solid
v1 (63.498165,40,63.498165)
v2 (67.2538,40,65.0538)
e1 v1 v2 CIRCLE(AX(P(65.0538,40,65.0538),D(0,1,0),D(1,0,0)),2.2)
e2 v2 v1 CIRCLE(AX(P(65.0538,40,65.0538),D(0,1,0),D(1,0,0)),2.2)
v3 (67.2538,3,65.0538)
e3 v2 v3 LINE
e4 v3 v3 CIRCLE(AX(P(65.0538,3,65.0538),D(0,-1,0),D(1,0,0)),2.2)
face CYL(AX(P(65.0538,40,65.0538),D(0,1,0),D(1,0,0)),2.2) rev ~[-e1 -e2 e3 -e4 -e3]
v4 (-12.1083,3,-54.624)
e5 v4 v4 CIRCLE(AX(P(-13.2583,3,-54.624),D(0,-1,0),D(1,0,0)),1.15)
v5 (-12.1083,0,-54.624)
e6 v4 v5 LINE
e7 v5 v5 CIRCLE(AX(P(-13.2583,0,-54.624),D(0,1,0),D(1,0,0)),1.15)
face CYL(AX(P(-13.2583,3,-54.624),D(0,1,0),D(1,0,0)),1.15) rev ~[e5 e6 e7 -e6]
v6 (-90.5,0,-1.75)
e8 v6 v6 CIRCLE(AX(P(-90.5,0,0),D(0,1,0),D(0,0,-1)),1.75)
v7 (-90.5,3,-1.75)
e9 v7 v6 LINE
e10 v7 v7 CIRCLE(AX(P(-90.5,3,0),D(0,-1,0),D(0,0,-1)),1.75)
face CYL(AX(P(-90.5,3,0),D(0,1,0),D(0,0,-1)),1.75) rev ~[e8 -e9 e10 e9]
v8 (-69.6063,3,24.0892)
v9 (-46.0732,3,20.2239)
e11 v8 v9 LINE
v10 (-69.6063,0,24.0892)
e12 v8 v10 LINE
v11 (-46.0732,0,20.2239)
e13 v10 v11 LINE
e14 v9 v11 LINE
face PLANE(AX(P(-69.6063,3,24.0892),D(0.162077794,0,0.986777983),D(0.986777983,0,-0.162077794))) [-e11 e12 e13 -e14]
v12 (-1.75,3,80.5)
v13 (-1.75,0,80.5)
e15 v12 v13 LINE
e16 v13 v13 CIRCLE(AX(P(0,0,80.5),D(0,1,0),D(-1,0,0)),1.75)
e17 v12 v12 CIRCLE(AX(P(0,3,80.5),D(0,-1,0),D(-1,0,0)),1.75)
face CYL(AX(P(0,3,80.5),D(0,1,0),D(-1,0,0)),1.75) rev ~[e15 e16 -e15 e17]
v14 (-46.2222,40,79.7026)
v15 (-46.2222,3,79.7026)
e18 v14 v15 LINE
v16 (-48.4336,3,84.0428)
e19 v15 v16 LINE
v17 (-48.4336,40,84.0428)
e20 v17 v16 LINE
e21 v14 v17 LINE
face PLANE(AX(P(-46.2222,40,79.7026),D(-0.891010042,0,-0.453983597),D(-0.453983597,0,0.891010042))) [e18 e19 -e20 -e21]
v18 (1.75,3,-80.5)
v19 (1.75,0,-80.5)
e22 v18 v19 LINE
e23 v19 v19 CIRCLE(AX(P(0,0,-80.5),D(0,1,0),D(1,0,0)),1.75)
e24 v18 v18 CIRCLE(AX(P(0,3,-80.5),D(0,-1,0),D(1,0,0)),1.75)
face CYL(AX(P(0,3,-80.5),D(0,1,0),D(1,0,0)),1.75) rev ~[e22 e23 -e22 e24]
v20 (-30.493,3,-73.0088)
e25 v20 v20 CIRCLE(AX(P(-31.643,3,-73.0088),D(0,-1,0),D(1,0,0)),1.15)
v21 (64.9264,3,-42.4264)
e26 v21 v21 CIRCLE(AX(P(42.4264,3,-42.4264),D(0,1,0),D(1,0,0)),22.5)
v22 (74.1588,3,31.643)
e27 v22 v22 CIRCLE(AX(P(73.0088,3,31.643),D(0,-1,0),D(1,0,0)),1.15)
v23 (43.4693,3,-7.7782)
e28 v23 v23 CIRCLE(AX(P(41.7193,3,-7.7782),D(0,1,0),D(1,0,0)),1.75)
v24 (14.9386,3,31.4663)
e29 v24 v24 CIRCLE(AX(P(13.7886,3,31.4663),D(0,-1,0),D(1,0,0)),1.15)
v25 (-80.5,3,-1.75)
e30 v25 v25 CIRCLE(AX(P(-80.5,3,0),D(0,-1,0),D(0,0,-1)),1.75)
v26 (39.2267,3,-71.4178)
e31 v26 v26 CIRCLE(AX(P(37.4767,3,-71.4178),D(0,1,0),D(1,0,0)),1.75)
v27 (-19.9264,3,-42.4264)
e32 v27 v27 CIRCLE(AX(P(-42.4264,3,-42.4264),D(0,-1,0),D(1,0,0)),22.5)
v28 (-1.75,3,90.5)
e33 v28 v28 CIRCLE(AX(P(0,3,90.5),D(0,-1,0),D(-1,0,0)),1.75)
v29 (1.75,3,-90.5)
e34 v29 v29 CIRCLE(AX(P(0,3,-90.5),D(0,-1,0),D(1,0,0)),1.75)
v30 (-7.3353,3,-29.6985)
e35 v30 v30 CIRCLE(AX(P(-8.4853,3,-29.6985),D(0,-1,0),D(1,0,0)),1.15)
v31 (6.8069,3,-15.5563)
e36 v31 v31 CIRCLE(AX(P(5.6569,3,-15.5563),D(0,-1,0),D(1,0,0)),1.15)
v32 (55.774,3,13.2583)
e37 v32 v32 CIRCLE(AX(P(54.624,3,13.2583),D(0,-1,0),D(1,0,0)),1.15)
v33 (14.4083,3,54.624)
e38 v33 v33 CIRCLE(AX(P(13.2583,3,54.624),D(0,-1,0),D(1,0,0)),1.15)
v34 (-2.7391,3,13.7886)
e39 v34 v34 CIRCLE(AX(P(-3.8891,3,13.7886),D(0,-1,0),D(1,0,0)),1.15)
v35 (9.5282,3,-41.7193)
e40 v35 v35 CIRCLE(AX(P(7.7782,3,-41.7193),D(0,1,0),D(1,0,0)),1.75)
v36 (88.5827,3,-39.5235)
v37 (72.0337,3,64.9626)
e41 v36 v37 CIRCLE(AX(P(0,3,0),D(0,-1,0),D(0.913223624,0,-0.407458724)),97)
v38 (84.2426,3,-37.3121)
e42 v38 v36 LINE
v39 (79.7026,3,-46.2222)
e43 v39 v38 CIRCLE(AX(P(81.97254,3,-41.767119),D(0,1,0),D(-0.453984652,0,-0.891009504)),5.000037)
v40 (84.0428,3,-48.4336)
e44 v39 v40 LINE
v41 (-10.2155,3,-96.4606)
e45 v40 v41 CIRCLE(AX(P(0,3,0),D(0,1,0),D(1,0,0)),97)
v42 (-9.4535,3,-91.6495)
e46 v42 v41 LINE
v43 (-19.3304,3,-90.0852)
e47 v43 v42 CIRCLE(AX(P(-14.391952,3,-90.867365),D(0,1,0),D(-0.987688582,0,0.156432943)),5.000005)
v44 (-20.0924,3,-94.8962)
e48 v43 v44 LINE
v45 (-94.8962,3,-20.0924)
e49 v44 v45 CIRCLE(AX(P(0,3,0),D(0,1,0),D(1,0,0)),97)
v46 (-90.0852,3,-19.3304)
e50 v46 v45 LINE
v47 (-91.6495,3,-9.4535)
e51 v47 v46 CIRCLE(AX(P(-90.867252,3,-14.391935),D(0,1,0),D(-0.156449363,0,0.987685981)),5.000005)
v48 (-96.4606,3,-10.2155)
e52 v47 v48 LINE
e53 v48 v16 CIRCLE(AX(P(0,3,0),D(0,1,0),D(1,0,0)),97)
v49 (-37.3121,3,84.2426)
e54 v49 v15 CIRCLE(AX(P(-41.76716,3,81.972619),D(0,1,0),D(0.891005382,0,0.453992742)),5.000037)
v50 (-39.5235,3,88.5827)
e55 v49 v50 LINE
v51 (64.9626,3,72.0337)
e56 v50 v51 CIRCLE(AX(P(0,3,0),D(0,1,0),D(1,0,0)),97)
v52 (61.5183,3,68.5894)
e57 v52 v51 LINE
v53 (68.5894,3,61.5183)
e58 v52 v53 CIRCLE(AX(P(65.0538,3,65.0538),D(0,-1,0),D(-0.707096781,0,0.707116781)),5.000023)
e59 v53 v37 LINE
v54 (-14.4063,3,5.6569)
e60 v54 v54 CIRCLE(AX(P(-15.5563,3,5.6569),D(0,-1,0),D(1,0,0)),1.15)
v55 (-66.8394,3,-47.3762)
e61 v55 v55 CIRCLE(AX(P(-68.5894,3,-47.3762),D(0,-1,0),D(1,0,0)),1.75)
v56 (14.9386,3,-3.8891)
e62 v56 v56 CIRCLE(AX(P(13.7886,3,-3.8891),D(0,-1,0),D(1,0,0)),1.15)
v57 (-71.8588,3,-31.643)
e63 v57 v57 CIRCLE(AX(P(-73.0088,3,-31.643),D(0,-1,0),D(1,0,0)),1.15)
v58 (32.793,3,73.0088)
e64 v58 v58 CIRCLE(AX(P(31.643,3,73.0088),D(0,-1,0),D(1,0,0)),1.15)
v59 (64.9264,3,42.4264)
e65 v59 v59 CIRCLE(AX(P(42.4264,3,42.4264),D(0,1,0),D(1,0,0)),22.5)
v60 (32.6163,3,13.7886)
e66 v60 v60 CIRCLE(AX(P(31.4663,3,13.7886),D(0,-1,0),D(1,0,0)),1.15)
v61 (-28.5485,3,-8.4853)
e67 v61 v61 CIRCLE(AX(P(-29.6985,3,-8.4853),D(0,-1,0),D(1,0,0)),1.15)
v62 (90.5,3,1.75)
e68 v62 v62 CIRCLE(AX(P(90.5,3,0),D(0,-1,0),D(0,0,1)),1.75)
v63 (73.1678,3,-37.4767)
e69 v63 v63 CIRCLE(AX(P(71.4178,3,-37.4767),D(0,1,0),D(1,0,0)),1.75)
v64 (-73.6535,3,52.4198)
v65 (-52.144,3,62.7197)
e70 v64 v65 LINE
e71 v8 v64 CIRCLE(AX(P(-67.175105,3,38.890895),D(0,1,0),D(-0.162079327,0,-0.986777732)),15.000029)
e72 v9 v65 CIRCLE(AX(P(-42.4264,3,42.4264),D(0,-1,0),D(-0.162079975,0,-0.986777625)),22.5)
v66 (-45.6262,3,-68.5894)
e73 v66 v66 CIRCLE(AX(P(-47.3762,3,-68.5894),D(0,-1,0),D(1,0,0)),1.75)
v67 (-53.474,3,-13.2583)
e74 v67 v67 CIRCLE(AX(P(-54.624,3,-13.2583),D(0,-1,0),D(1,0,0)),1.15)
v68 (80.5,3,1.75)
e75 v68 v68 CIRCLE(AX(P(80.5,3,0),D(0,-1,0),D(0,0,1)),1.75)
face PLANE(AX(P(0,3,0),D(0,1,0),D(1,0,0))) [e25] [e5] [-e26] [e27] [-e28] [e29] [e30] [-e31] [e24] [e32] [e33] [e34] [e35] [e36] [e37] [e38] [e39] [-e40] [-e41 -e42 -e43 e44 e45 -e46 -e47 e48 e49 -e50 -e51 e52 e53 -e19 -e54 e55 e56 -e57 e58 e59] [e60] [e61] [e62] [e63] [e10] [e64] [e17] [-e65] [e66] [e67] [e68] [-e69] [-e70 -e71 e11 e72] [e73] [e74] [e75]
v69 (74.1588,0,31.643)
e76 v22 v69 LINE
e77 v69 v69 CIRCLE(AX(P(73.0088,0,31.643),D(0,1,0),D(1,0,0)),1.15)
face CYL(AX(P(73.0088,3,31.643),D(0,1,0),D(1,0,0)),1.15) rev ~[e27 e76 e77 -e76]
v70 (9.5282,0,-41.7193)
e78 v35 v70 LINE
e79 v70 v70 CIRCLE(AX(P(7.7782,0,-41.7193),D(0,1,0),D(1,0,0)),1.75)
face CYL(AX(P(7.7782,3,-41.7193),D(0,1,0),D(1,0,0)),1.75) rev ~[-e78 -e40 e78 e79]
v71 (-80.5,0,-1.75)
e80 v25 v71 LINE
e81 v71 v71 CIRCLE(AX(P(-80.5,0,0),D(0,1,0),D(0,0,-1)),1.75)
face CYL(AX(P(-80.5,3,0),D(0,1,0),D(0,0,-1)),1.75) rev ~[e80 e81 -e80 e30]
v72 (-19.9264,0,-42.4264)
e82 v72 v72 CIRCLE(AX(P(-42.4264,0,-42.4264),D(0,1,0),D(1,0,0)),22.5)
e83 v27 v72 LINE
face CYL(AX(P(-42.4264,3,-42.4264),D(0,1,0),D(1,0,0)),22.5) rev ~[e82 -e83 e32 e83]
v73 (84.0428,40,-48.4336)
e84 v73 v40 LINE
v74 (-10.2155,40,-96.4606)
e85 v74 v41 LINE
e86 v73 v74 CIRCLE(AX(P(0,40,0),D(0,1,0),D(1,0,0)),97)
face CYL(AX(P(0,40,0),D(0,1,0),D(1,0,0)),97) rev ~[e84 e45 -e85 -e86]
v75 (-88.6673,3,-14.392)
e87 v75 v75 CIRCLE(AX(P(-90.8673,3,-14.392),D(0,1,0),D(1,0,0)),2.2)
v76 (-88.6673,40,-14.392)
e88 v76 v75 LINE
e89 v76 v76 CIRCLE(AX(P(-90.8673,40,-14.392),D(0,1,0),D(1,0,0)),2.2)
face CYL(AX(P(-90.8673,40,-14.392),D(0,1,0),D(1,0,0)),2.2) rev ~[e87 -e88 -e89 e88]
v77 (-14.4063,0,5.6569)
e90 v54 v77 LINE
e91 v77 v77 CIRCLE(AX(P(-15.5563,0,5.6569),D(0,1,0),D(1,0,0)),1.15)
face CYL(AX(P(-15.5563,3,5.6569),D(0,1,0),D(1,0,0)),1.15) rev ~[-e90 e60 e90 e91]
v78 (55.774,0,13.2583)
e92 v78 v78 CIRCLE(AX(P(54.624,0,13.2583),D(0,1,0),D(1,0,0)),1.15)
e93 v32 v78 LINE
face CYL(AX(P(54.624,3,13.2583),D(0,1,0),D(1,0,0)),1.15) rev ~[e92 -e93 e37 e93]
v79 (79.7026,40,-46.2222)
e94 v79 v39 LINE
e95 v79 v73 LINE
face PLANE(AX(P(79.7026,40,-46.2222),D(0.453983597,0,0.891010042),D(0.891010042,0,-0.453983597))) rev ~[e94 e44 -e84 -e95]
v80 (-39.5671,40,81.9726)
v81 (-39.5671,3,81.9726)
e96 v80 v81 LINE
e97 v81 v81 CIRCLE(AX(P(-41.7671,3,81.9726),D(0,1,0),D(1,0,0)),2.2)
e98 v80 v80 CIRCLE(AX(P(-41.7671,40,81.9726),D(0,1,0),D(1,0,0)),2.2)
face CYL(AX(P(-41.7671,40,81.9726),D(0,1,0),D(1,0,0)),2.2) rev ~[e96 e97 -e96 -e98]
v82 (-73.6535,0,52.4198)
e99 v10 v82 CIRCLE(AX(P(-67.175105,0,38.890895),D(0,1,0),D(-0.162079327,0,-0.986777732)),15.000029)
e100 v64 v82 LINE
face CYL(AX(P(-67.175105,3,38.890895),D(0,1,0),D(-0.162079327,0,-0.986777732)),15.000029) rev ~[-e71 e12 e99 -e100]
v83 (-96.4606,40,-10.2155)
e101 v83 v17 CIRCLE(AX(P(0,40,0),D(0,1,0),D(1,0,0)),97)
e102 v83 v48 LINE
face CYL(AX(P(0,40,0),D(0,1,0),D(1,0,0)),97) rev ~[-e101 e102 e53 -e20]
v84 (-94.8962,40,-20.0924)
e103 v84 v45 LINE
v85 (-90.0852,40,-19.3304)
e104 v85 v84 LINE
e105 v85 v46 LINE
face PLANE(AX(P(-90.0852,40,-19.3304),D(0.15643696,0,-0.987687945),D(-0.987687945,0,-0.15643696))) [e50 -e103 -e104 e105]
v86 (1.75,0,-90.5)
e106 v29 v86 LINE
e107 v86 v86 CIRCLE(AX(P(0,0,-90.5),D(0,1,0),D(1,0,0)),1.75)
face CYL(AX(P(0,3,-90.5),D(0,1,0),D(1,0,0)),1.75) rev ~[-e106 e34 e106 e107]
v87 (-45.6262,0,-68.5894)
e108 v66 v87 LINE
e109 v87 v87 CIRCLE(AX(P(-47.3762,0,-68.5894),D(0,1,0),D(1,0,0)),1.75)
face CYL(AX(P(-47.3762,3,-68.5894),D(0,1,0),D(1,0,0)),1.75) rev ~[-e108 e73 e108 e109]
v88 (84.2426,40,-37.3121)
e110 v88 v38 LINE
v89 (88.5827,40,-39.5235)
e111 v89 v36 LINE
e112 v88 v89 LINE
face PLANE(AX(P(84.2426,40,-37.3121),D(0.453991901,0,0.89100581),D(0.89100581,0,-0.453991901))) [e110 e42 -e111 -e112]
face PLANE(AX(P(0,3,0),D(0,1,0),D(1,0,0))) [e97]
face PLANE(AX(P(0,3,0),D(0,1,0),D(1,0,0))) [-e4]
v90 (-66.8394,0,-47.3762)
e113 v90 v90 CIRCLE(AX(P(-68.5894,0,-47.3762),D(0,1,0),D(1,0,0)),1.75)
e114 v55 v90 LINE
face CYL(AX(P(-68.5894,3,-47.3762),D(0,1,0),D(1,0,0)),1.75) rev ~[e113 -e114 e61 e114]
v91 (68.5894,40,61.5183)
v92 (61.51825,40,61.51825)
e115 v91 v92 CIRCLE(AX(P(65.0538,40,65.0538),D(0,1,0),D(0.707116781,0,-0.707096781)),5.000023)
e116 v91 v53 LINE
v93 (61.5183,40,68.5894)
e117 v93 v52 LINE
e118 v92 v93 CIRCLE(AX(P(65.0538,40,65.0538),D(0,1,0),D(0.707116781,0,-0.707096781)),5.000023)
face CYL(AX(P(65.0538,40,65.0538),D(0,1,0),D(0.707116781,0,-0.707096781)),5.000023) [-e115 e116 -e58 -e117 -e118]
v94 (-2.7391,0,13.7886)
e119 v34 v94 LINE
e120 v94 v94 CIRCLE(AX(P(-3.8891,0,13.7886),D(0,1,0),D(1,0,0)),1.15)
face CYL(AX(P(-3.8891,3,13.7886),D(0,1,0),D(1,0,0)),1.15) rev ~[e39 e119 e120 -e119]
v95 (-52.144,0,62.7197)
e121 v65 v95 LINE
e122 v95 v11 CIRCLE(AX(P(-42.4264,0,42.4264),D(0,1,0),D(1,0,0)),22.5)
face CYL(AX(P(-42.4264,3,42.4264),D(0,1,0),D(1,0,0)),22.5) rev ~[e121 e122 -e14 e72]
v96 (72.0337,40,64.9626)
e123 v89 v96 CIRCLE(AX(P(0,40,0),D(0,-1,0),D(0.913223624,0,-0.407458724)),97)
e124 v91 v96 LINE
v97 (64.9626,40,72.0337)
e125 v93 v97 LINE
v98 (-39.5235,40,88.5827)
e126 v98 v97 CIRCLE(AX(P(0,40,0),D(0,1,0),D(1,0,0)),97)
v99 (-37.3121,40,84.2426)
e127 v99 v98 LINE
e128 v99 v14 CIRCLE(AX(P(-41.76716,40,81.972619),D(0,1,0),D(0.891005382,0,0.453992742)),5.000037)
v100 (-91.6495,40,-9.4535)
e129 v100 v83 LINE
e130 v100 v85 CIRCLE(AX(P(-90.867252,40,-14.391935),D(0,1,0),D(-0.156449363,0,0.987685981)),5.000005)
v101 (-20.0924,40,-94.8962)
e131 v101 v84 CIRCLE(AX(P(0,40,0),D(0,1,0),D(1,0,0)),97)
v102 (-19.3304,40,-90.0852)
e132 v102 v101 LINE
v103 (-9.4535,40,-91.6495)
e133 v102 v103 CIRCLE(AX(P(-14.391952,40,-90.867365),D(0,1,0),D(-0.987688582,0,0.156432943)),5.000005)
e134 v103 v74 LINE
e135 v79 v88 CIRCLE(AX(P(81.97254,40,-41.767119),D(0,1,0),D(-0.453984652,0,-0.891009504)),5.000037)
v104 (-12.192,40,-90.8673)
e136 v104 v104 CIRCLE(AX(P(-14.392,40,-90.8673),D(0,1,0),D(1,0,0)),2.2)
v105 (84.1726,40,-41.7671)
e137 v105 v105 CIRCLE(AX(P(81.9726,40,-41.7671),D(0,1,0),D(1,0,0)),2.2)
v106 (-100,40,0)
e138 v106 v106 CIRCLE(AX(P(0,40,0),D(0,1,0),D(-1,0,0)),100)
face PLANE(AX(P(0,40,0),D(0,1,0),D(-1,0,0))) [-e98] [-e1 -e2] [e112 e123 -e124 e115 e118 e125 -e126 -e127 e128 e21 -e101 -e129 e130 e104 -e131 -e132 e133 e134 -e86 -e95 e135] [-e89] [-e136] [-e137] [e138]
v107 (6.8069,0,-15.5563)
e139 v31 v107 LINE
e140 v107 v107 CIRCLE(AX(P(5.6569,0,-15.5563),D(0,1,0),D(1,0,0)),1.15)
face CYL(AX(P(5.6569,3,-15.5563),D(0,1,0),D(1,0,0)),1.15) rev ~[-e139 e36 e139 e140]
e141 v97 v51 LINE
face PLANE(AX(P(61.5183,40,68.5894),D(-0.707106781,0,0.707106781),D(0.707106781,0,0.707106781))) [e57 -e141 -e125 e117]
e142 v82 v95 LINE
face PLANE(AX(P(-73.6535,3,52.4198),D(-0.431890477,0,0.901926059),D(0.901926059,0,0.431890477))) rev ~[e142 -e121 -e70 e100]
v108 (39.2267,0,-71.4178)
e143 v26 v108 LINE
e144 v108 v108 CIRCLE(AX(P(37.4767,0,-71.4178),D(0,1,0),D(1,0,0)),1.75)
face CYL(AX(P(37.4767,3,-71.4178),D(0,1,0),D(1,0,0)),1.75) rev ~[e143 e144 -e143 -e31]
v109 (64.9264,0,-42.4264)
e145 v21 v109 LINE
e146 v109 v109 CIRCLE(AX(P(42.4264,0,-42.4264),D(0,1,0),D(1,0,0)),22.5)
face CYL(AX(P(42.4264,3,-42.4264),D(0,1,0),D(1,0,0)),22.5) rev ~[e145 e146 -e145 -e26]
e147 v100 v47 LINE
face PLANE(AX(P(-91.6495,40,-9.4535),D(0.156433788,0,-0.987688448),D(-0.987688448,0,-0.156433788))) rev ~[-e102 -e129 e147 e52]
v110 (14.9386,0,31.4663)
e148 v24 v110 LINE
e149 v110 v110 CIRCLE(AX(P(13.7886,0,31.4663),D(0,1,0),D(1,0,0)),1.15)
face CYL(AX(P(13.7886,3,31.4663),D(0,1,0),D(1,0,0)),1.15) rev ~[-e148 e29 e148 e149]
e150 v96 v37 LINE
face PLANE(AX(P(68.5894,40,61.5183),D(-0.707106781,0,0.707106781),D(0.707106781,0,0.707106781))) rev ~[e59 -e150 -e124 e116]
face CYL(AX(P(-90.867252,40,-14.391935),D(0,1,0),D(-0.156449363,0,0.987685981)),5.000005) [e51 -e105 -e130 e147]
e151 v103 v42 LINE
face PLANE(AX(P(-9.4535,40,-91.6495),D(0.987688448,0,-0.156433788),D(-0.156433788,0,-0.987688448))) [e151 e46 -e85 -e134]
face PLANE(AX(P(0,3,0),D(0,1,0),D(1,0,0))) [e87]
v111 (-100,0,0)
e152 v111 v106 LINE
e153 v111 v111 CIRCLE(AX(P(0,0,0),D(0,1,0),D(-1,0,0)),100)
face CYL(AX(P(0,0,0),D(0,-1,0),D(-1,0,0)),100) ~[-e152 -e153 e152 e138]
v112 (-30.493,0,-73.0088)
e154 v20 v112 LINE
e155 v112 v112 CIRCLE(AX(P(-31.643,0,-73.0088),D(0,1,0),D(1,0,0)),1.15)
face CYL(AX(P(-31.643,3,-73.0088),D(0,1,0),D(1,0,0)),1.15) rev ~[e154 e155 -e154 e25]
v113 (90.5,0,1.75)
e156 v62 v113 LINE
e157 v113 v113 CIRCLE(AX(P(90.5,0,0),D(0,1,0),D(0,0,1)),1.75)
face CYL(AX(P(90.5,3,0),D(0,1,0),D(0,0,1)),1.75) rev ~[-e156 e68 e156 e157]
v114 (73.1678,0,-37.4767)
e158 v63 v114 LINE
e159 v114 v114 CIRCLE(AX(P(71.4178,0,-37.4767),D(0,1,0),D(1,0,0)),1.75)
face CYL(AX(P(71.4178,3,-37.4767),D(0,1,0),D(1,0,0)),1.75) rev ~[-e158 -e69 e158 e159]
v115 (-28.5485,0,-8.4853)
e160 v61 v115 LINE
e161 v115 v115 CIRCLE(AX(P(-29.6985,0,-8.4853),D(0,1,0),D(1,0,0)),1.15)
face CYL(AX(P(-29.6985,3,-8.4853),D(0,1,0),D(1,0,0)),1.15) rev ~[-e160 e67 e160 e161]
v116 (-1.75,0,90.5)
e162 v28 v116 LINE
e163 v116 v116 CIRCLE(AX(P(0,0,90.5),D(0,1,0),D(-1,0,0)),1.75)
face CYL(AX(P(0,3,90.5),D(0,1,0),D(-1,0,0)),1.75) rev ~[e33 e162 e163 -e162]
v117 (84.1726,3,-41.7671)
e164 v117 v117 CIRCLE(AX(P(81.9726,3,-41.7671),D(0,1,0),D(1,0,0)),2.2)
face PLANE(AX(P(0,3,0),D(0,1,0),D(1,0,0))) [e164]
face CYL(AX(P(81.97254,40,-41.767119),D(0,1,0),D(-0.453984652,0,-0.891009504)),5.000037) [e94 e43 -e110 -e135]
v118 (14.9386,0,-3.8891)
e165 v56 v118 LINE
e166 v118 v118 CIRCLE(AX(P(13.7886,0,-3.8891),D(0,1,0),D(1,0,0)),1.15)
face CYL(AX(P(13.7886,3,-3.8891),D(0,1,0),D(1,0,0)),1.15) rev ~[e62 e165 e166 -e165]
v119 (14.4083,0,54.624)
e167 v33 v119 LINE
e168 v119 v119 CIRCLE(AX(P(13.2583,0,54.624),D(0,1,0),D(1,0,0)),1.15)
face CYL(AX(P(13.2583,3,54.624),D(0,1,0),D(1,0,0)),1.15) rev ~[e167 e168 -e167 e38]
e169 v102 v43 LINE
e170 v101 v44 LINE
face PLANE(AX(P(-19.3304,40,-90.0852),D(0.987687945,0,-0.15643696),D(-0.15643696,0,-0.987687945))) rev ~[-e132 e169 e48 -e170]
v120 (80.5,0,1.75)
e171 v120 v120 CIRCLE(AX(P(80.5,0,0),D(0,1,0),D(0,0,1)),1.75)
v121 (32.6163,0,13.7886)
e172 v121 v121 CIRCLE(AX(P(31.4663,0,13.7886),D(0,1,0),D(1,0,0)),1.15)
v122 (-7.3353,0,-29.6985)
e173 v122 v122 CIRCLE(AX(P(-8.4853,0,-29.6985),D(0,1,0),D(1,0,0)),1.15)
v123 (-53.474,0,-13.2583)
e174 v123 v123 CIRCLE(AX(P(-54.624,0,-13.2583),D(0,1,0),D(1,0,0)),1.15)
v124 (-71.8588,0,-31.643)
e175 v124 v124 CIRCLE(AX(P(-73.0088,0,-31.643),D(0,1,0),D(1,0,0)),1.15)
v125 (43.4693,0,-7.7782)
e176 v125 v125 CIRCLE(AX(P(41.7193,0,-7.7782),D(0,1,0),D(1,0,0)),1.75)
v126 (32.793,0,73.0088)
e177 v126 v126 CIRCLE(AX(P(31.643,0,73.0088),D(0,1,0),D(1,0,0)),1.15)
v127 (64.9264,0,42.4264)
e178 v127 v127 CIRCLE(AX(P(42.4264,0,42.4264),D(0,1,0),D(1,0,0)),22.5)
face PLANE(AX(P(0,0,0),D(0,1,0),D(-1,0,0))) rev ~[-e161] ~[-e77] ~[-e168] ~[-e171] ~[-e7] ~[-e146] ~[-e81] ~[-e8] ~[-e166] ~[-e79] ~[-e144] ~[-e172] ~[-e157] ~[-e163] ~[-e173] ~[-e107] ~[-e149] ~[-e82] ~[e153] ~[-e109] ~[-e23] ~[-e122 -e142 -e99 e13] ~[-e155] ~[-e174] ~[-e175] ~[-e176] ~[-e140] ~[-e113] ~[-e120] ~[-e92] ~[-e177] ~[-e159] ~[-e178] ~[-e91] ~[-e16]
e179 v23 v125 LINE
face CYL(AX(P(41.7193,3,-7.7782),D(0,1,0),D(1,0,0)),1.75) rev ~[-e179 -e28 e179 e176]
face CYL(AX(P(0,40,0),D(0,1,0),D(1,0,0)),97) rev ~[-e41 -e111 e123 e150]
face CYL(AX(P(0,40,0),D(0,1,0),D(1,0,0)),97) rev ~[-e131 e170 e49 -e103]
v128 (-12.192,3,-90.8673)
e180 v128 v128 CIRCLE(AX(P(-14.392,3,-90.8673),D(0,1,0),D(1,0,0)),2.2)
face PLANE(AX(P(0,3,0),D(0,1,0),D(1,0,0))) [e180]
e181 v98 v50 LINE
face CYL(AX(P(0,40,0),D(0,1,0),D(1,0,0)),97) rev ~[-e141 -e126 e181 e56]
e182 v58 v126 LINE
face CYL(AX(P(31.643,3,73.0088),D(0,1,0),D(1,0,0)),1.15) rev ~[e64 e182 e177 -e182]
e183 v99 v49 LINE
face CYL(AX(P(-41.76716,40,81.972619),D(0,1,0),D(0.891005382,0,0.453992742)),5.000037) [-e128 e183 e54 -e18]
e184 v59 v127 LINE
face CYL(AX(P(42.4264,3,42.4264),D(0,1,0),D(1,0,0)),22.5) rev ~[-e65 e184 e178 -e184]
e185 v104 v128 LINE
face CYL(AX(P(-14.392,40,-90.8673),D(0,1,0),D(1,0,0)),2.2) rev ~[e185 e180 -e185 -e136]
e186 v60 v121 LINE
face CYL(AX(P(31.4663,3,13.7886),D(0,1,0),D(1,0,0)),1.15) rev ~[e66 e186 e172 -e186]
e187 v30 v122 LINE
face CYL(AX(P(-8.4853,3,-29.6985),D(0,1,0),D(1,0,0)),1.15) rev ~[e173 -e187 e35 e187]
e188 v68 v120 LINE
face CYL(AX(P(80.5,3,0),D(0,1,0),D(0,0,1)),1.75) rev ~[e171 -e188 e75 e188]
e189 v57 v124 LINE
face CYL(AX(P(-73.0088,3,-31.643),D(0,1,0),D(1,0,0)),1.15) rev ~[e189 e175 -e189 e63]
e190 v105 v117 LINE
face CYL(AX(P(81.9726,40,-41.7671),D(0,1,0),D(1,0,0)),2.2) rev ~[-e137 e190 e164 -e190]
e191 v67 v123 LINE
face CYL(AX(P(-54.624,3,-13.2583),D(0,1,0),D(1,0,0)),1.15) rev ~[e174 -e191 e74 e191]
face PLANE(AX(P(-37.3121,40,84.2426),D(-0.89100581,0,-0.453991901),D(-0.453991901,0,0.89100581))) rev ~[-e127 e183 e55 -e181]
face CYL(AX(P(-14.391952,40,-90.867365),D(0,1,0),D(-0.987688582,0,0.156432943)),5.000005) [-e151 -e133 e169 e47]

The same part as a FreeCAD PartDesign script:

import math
import FreeCAD as App
import Part
import Sketcher
from FreeCAD import Vector
Q = App.Units.Quantity

doc = App.newDocument("Part")
body = doc.addObject("PartDesign::Body", "Body")

# Sketch on XZ plane
sketch1 = body.newObject("Sketcher::SketchObject", "Sketch")
sketch1.AttachmentSupport = (doc.getObject("XZ_Plane"), [""])
sketch1.MapMode = "FlatFace"
sketch1.addGeometry(Part.Circle(Vector(0, 0, 0), Vector(0, 0, 1), 100), False)
sketch1.addConstraint(Sketcher.Constraint("Coincident", 0, 3, -1, 1))
sketch1.addConstraint(Sketcher.Constraint("Diameter", 0, 200.0))
pad1 = body.newObject("PartDesign::Pad", "Pad")
pad1.Profile = sketch1
pad1.Length = 40
pad1.Reversed = True

# Sketch on XZ plane
sketch2 = body.newObject("Sketcher::SketchObject", "Sketch001")
sketch2.AttachmentSupport = (doc.getObject("XZ_Plane"), [""])
sketch2.MapMode = "FlatFace"
sketch2.AttachmentOffset = App.Placement(Vector(0, 0, -40), App.Rotation())
sketch2.addGeometry(Part.Circle(Vector(0, 0, 0), Vector(0, 0, 1), 97), False)
sketch2.addConstraint(Sketcher.Constraint("Coincident", 0, 3, -1, 1))
sketch2.addConstraint(Sketcher.Constraint("Diameter", 0, 194.0))
pocket1 = body.newObject("PartDesign::Pocket", "Pocket")
pocket1.Profile = sketch2
pocket1.Length = 37
pocket1.Reversed = True

# Sketch on XZ plane
sketch3 = body.newObject("Sketcher::SketchObject", "Sketch002")
sketch3.AttachmentSupport = (doc.getObject("XZ_Plane"), [""])
sketch3.MapMode = "FlatFace"
sketch3.AttachmentOffset = App.Placement(Vector(0, 0, -40), App.Rotation())
sketch3.addGeometry(Part.ArcOfCircle(Part.Circle(Vector(65.0538, 65.0538, 0), Vector(0, 0, 1), 5.000023), math.radians(-135), math.radians(-44.99919)), False)
sketch3.addGeometry(Part.ArcOfCircle(Part.Circle(Vector(65.0538, 65.0538, 0), Vector(0, 0, 1), 5.000023), math.radians(134.99919), math.radians(225)), False)
sketch3.addGeometry(Part.LineSegment(Vector(61.5183, 68.5894, 0), Vector(64.9626, 72.0337, 0)), False)
sketch3.addGeometry(Part.ArcOfCircle(Part.Circle(Vector(0, 0, 0), Vector(0, 0, 1), 97), math.radians(42.045285), math.radians(47.954715)), False)
sketch3.addGeometry(Part.LineSegment(Vector(72.0337, 64.9626, 0), Vector(68.5894, 61.5183, 0)), False)
sketch3.addGeometry(Part.Circle(Vector(65.0538, 65.0538, 0), Vector(0, 0, 1), 2.2), False)
sketch3.addGeometry(Part.ArcOfCircle(Part.Circle(Vector(0, 0, 0), Vector(0, 0, 1), 97), math.radians(114.045295), math.radians(119.954712)), False)
sketch3.addGeometry(Part.LineSegment(Vector(-39.5235, 88.5827, 0), Vector(-37.3121, 84.2426, 0)), False)
sketch3.addGeometry(Part.ArcOfCircle(Part.Circle(Vector(-41.7671, 81.9726, 0), Vector(0, 0, 1), 4.999992), math.radians(-152.999866), math.radians(27.000655)), False)
sketch3.addGeometry(Part.LineSegment(Vector(-46.2222, 79.7026, 0), Vector(-48.4336, 84.0428, 0)), False)
sketch3.addGeometry(Part.Circle(Vector(-41.7671, 81.9726, 0), Vector(0, 0, 1), 2.2), False)
sketch3.addGeometry(Part.LineSegment(Vector(84.2426, -37.3121, 0), Vector(88.5827, -39.5235, 0)), False)
sketch3.addGeometry(Part.ArcOfCircle(Part.Circle(Vector(0, 0, 0), Vector(0, 0, 1), 97), math.radians(-29.954712), math.radians(-24.045295)), False)
sketch3.addGeometry(Part.LineSegment(Vector(84.0428, -48.4336, 0), Vector(79.7026, -46.2222, 0)), False)
sketch3.addGeometry(Part.ArcOfCircle(Part.Circle(Vector(81.9726, -41.7671, 0), Vector(0, 0, 1), 5.000082), math.radians(62.999345), math.radians(242.999866)), False)
sketch3.addGeometry(Part.Circle(Vector(81.9726, -41.7671, 0), Vector(0, 0, 1), 2.2), False)
sketch3.addGeometry(Part.ArcOfCircle(Part.Circle(Vector(0, 0, 0), Vector(0, 0, 1), 97), math.radians(-173.954719), math.radians(-168.045303)), False)
sketch3.addGeometry(Part.LineSegment(Vector(-96.4606, -10.2155, 0), Vector(-91.6495, -9.4535, 0)), False)
sketch3.addGeometry(Part.ArcOfCircle(Part.Circle(Vector(-90.8673, -14.392, 0), Vector(0, 0, 1), 5.000062), math.radians(-81.000744), math.radians(99.000209)), False)
sketch3.addGeometry(Part.LineSegment(Vector(-90.0852, -19.3304, 0), Vector(-94.8962, -20.0924, 0)), False)
sketch3.addGeometry(Part.Circle(Vector(-90.8673, -14.392, 0), Vector(0, 0, 1), 2.2), False)
sketch3.addGeometry(Part.LineSegment(Vector(-9.4535, -91.6495, 0), Vector(-10.2155, -96.4606, 0)), False)
sketch3.addGeometry(Part.ArcOfCircle(Part.Circle(Vector(0, 0, 0), Vector(0, 0, 1), 97), math.radians(-101.954697), math.radians(-96.045281)), False)
sketch3.addGeometry(Part.LineSegment(Vector(-20.0924, -94.8962, 0), Vector(-19.3304, -90.0852, 0)), False)
sketch3.addGeometry(Part.ArcOfCircle(Part.Circle(Vector(-14.392, -90.8673, 0), Vector(0, 0, 1), 4.999947), math.radians(-9.000209), math.radians(171.000744)), False)
sketch3.addGeometry(Part.Circle(Vector(-14.392, -90.8673, 0), Vector(0, 0, 1), 2.2), False)
sketch3.addConstraint(Sketcher.Constraint("Tangent", 0, 1, 1, 2))
sketch3.addConstraint(Sketcher.Constraint("Tangent", 1, 1, 2, 1))
sketch3.addConstraint(Sketcher.Constraint("Coincident", 2, 2, 3, 2))
sketch3.addConstraint(Sketcher.Constraint("Coincident", 3, 1, 4, 1))
sketch3.addConstraint(Sketcher.Constraint("Tangent", 4, 2, 0, 2))
sketch3.addConstraint(Sketcher.Constraint("Coincident", 6, 1, 7, 1))
sketch3.addConstraint(Sketcher.Constraint("Tangent", 7, 2, 8, 2))
sketch3.addConstraint(Sketcher.Constraint("Tangent", 8, 1, 9, 1))
sketch3.addConstraint(Sketcher.Constraint("Coincident", 9, 2, 6, 2))
sketch3.addConstraint(Sketcher.Constraint("Coincident", 11, 2, 12, 2))
sketch3.addConstraint(Sketcher.Constraint("Coincident", 12, 1, 13, 1))
sketch3.addConstraint(Sketcher.Constraint("Tangent", 13, 2, 14, 2))
sketch3.addConstraint(Sketcher.Constraint("Tangent", 14, 1, 11, 1))
sketch3.addConstraint(Sketcher.Constraint("Coincident", 16, 1, 17, 1))
sketch3.addConstraint(Sketcher.Constraint("Tangent", 17, 2, 18, 2))
sketch3.addConstraint(Sketcher.Constraint("Tangent", 18, 1, 19, 1))
sketch3.addConstraint(Sketcher.Constraint("Coincident", 19, 2, 16, 2))
sketch3.addConstraint(Sketcher.Constraint("Coincident", 21, 2, 22, 2))
sketch3.addConstraint(Sketcher.Constraint("Coincident", 22, 1, 23, 1))
sketch3.addConstraint(Sketcher.Constraint("Tangent", 23, 2, 24, 2))
sketch3.addConstraint(Sketcher.Constraint("Tangent", 24, 1, 21, 1))
sketch3.addConstraint(Sketcher.Constraint("Coincident", 3, 3, -1, 1))
sketch3.addConstraint(Sketcher.Constraint("Coincident", 6, 3, -1, 1))
sketch3.addConstraint(Sketcher.Constraint("Coincident", 12, 3, -1, 1))
sketch3.addConstraint(Sketcher.Constraint("Coincident", 16, 3, -1, 1))
sketch3.addConstraint(Sketcher.Constraint("Coincident", 22, 3, -1, 1))
sketch3.addConstraint(Sketcher.Constraint("Coincident", 5, 3, 0, 3))
sketch3.addConstraint(Sketcher.Constraint("Coincident", 10, 3, 8, 3))
sketch3.addConstraint(Sketcher.Constraint("Coincident", 15, 3, 14, 3))
sketch3.addConstraint(Sketcher.Constraint("Coincident", 20, 3, 18, 3))
sketch3.addConstraint(Sketcher.Constraint("Coincident", 25, 3, 24, 3))
sketch3.addConstraint(Sketcher.Constraint("Equal", 0, 1))
sketch3.addConstraint(Sketcher.Constraint("Equal", 3, 6))
sketch3.addConstraint(Sketcher.Constraint("Equal", 1, 8))
sketch3.addConstraint(Sketcher.Constraint("Equal", 5, 10))
sketch3.addConstraint(Sketcher.Constraint("Equal", 6, 12))
sketch3.addConstraint(Sketcher.Constraint("Equal", 8, 14))
sketch3.addConstraint(Sketcher.Constraint("Equal", 10, 15))
sketch3.addConstraint(Sketcher.Constraint("Equal", 12, 16))
sketch3.addConstraint(Sketcher.Constraint("Equal", 14, 18))
sketch3.addConstraint(Sketcher.Constraint("Equal", 15, 20))
sketch3.addConstraint(Sketcher.Constraint("Equal", 16, 22))
sketch3.addConstraint(Sketcher.Constraint("Equal", 18, 24))
sketch3.addConstraint(Sketcher.Constraint("Equal", 20, 25))
sketch3.addConstraint(Sketcher.Constraint("Parallel", 2, 4))
sketch3.addConstraint(Sketcher.Constraint("Parallel", 7, 9))
sketch3.addConstraint(Sketcher.Constraint("Parallel", 11, 13))
sketch3.addConstraint(Sketcher.Constraint("Parallel", 17, 19))
sketch3.addConstraint(Sketcher.Constraint("Parallel", 21, 23))
sketch3.addConstraint(Sketcher.Constraint("Horizontal", 0, 1, 4, 2))
sketch3.addConstraint(Sketcher.Constraint("Equal", 2, 4))
sketch3.addConstraint(Sketcher.Constraint("Equal", 4, 7))
sketch3.addConstraint(Sketcher.Constraint("Equal", 7, 9))
sketch3.addConstraint(Sketcher.Constraint("Equal", 9, 11))
sketch3.addConstraint(Sketcher.Constraint("Equal", 11, 13))
sketch3.addConstraint(Sketcher.Constraint("Equal", 13, 17))
sketch3.addConstraint(Sketcher.Constraint("Equal", 17, 19))
sketch3.addConstraint(Sketcher.Constraint("Equal", 19, 21))
sketch3.addConstraint(Sketcher.Constraint("Equal", 21, 23))
sketch3.addConstraint(Sketcher.Constraint("Radius", 0, 5.0))
sketch3.addConstraint(Sketcher.Constraint("Diameter", 5, 4.4))
sketch3.addConstraint(Sketcher.Constraint("Angle", 4, Q("-135 deg")))
sketch3.addConstraint(Sketcher.Constraint("Radius", 3, 97.0))
sketch3.addConstraint(Sketcher.Constraint("Angle", 7, Q("-63 deg")))
sketch3.addConstraint(Sketcher.Constraint("Angle", 11, Q("-27 deg")))
sketch3.addConstraint(Sketcher.Constraint("Angle", 17, Q("9 deg")))
sketch3.addConstraint(Sketcher.Constraint("Angle", 21, Q("-99 deg")))
sketch3.addConstraint(Sketcher.Constraint("DistanceY", 0, 3, 2, 2, 6.98))
pad2 = body.newObject("PartDesign::Pad", "Pad001")
pad2.Profile = sketch3
pad2.Length = 37

# Sketch on XZ plane
sketch4 = body.newObject("Sketcher::SketchObject", "Sketch003")
sketch4.AttachmentSupport = (doc.getObject("XZ_Plane"), [""])
sketch4.MapMode = "FlatFace"
sketch4.AttachmentOffset = App.Placement(Vector(0, 0, -3), App.Rotation())
sketch4.addGeometry(Part.Circle(Vector(37.4767, -71.4178, 0), Vector(0, 0, 1), 1.75), False)
sketch4.addGeometry(Part.Circle(Vector(7.7782, -41.7193, 0), Vector(0, 0, 1), 1.75), False)
sketch4.addGeometry(Part.Circle(Vector(71.4178, -37.4767, 0), Vector(0, 0, 1), 1.75), False)
sketch4.addGeometry(Part.Circle(Vector(41.7193, -7.7782, 0), Vector(0, 0, 1), 1.75), False)
sketch4.addConstraint(Sketcher.Constraint("Equal", 0, 1))
sketch4.addConstraint(Sketcher.Constraint("Equal", 1, 2))
sketch4.addConstraint(Sketcher.Constraint("Equal", 2, 3))
sketch4.addConstraint(Sketcher.Constraint("Diameter", 0, 3.5))
sketch4.addConstraint(Sketcher.Constraint("DistanceX", 0, 3, 2, 3, 33.941))
sketch4.addConstraint(Sketcher.Constraint("DistanceY", 0, 3, 2, 3, 33.941))
sketch4.addConstraint(Sketcher.Constraint("DistanceX", 1, 3, 3, 3, 33.941))
sketch4.addConstraint(Sketcher.Constraint("DistanceY", 1, 3, 3, 3, 33.941))
sketch4.addConstraint(Sketcher.Constraint("DistanceX", -1, 1, 0, 3, 37.4767))
sketch4.addConstraint(Sketcher.Constraint("DistanceY", 0, 3, -1, 1, 71.4178))
sketch4.addConstraint(Sketcher.Constraint("DistanceX", -1, 1, 1, 3, 7.7782))
sketch4.addConstraint(Sketcher.Constraint("DistanceY", 1, 3, -1, 1, 41.7193))
pocket2 = body.newObject("PartDesign::Pocket", "Pocket001")
pocket2.Profile = sketch4
pocket2.Length = 4
pocket2.Reversed = True

# Sketch on XZ plane
sketch5 = body.newObject("Sketcher::SketchObject", "Sketch004")
sketch5.AttachmentSupport = (doc.getObject("XZ_Plane"), [""])
sketch5.MapMode = "FlatFace"
sketch5.AttachmentOffset = App.Placement(Vector(0, 0, -3), App.Rotation())
sketch5.addGeometry(Part.Circle(Vector(54.624, 13.2583, 0), Vector(0, 0, 1), 1.15), False)
sketch5.addGeometry(Part.Circle(Vector(73.0088, 31.643, 0), Vector(0, 0, 1), 1.15), False)
sketch5.addGeometry(Part.Circle(Vector(13.2583, 54.624, 0), Vector(0, 0, 1), 1.15), False)
sketch5.addGeometry(Part.Circle(Vector(31.643, 73.0088, 0), Vector(0, 0, 1), 1.15), False)
sketch5.addConstraint(Sketcher.Constraint("Equal", 0, 1))
sketch5.addConstraint(Sketcher.Constraint("Equal", 1, 2))
sketch5.addConstraint(Sketcher.Constraint("Equal", 2, 3))
sketch5.addConstraint(Sketcher.Constraint("Diameter", 0, 2.3))
sketch5.addConstraint(Sketcher.Constraint("DistanceX", -1, 1, 0, 3, 54.624))
sketch5.addConstraint(Sketcher.Constraint("DistanceY", -1, 1, 1, 3, 31.643))
sketch5.addConstraint(Sketcher.Constraint("DistanceY", -1, 1, 2, 3, 54.624))
sketch5.addConstraint(Sketcher.Constraint("DistanceX", -1, 1, 3, 3, 31.643))
sketch5.addConstraint(Sketcher.Constraint("DistanceY", -1, 1, 0, 3, 13.2583))
sketch5.addConstraint(Sketcher.Constraint("DistanceX", -1, 1, 1, 3, 73.0088))
sketch5.addConstraint(Sketcher.Constraint("DistanceX", -1, 1, 2, 3, 13.2583))
sketch5.addConstraint(Sketcher.Constraint("DistanceY", -1, 1, 3, 3, 73.0088))
pocket3 = body.newObject("PartDesign::Pocket", "Pocket002")
pocket3.Profile = sketch5
pocket3.Length = 10
pocket3.Reversed = True

# Sketch on XZ plane
sketch6 = body.newObject("Sketcher::SketchObject", "Sketch005")
sketch6.AttachmentSupport = (doc.getObject("XZ_Plane"), [""])
sketch6.MapMode = "FlatFace"
sketch6.AttachmentOffset = App.Placement(Vector(0, 0, -3), App.Rotation())
sketch6.addGeometry(Part.Circle(Vector(-73.0088, -31.643, 0), Vector(0, 0, 1), 1.15), False)
sketch6.addGeometry(Part.Circle(Vector(-31.643, -73.0088, 0), Vector(0, 0, 1), 1.15), False)
sketch6.addGeometry(Part.Circle(Vector(-54.624, -13.2583, 0), Vector(0, 0, 1), 1.15), False)
sketch6.addGeometry(Part.Circle(Vector(-13.2583, -54.624, 0), Vector(0, 0, 1), 1.15), False)
sketch6.addConstraint(Sketcher.Constraint("Equal", 0, 1))
sketch6.addConstraint(Sketcher.Constraint("Equal", 1, 2))
sketch6.addConstraint(Sketcher.Constraint("Equal", 2, 3))
sketch6.addConstraint(Sketcher.Constraint("Diameter", 0, 2.3))
sketch6.addConstraint(Sketcher.Constraint("DistanceY", 0, 3, -1, 1, 31.643))
sketch6.addConstraint(Sketcher.Constraint("DistanceX", 1, 3, -1, 1, 31.643))
sketch6.addConstraint(Sketcher.Constraint("DistanceX", 2, 3, -1, 1, 54.624))
sketch6.addConstraint(Sketcher.Constraint("DistanceY", 3, 3, -1, 1, 54.624))
sketch6.addConstraint(Sketcher.Constraint("DistanceX", 0, 3, -1, 1, 73.0088))
sketch6.addConstraint(Sketcher.Constraint("DistanceY", 1, 3, -1, 1, 73.0088))
sketch6.addConstraint(Sketcher.Constraint("DistanceY", 2, 3, -1, 1, 13.2583))
sketch6.addConstraint(Sketcher.Constraint("DistanceX", 3, 3, -1, 1, 13.2583))
pocket4 = body.newObject("PartDesign::Pocket", "Pocket003")
pocket4.Profile = sketch6
pocket4.Length = 10
pocket4.Reversed = True

# Sketch on XZ plane
sketch7 = body.newObject("Sketcher::SketchObject", "Sketch006")
sketch7.AttachmentSupport = (doc.getObject("XZ_Plane"), [""])
sketch7.MapMode = "FlatFace"
sketch7.AttachmentOffset = App.Placement(Vector(0, 0, -3), App.Rotation())
sketch7.addGeometry(Part.Circle(Vector(-3.8891, 13.7886, 0), Vector(0, 0, 1), 1.15), False)
sketch7.addGeometry(Part.Circle(Vector(13.7886, 31.4663, 0), Vector(0, 0, 1), 1.15), False)
sketch7.addGeometry(Part.Circle(Vector(13.7886, -3.8891, 0), Vector(0, 0, 1), 1.15), False)
sketch7.addGeometry(Part.Circle(Vector(31.4663, 13.7886, 0), Vector(0, 0, 1), 1.15), False)
sketch7.addConstraint(Sketcher.Constraint("Equal", 0, 1))
sketch7.addConstraint(Sketcher.Constraint("Equal", 1, 2))
sketch7.addConstraint(Sketcher.Constraint("Equal", 2, 3))
sketch7.addConstraint(Sketcher.Constraint("Horizontal", 0, 3, 3, 3))
sketch7.addConstraint(Sketcher.Constraint("Vertical", 1, 3, 2, 3))
sketch7.addConstraint(Sketcher.Constraint("Diameter", 0, 2.3))
sketch7.addConstraint(Sketcher.Constraint("DistanceX", 0, 3, -1, 1, 3.889))
sketch7.addConstraint(Sketcher.Constraint("DistanceY", 2, 3, -1, 1, 3.889))
sketch7.addConstraint(Sketcher.Constraint("DistanceY", -1, 1, 0, 3, 13.7886))
sketch7.addConstraint(Sketcher.Constraint("DistanceX", -1, 1, 1, 3, 13.7886))
sketch7.addConstraint(Sketcher.Constraint("DistanceY", -1, 1, 1, 3, 31.4663))
sketch7.addConstraint(Sketcher.Constraint("DistanceX", -1, 1, 3, 3, 31.4663))
pocket5 = body.newObject("PartDesign::Pocket", "Pocket004")
pocket5.Profile = sketch7
pocket5.Length = 10
pocket5.Reversed = True

# Sketch on XZ plane
sketch8 = body.newObject("Sketcher::SketchObject", "Sketch007")
sketch8.AttachmentSupport = (doc.getObject("XZ_Plane"), [""])
sketch8.MapMode = "FlatFace"
sketch8.AttachmentOffset = App.Placement(Vector(0, 0, -3), App.Rotation())
sketch8.addGeometry(Part.Circle(Vector(-15.5563, 5.6569, 0), Vector(0, 0, 1), 1.15), False)
sketch8.addGeometry(Part.Circle(Vector(-29.6985, -8.4853, 0), Vector(0, 0, 1), 1.15), False)
sketch8.addGeometry(Part.Circle(Vector(5.6569, -15.5563, 0), Vector(0, 0, 1), 1.15), False)
sketch8.addGeometry(Part.Circle(Vector(-8.4853, -29.6985, 0), Vector(0, 0, 1), 1.15), False)
sketch8.addConstraint(Sketcher.Constraint("Equal", 0, 1))
sketch8.addConstraint(Sketcher.Constraint("Equal", 1, 2))
sketch8.addConstraint(Sketcher.Constraint("Equal", 2, 3))
sketch8.addConstraint(Sketcher.Constraint("Diameter", 0, 2.3))
sketch8.addConstraint(Sketcher.Constraint("DistanceY", -1, 1, 0, 3, 5.657))
sketch8.addConstraint(Sketcher.Constraint("DistanceX", -1, 1, 2, 3, 5.657))
sketch8.addConstraint(Sketcher.Constraint("DistanceY", 2, 3, 1, 3, 7.071))
sketch8.addConstraint(Sketcher.Constraint("DistanceX", 0, 3, 3, 3, 7.071))
sketch8.addConstraint(Sketcher.Constraint("DistanceX", 0, 3, -1, 1, 15.5563))
sketch8.addConstraint(Sketcher.Constraint("DistanceX", 1, 3, -1, 1, 29.6985))
sketch8.addConstraint(Sketcher.Constraint("DistanceY", 1, 3, -1, 1, 8.4853))
sketch8.addConstraint(Sketcher.Constraint("DistanceY", 3, 3, -1, 1, 29.6985))
pocket6 = body.newObject("PartDesign::Pocket", "Pocket005")
pocket6.Profile = sketch8
pocket6.Length = 10
pocket6.Reversed = True

# Sketch on XZ plane
sketch9 = body.newObject("Sketcher::SketchObject", "Sketch008")
sketch9.AttachmentSupport = (doc.getObject("XZ_Plane"), [""])
sketch9.MapMode = "FlatFace"
sketch9.AttachmentOffset = App.Placement(Vector(0, 0, -3), App.Rotation())
sketch9.addGeometry(Part.Circle(Vector(0, -80.5, 0), Vector(0, 0, 1), 1.75), False)
sketch9.addGeometry(Part.Circle(Vector(0, -90.5, 0), Vector(0, 0, 1), 1.75), False)
sketch9.addConstraint(Sketcher.Constraint("Equal", 0, 1))
sketch9.addConstraint(Sketcher.Constraint("PointOnObject", 0, 3, -2))
sketch9.addConstraint(Sketcher.Constraint("PointOnObject", 1, 3, -2))
sketch9.addConstraint(Sketcher.Constraint("Diameter", 0, 3.5))
sketch9.addConstraint(Sketcher.Constraint("DistanceY", 1, 3, 0, 3, 10.0))
sketch9.addConstraint(Sketcher.Constraint("DistanceY", 0, 3, -1, 1, 80.5))
pocket7 = body.newObject("PartDesign::Pocket", "Pocket006")
pocket7.Profile = sketch9
pocket7.Length = 10
pocket7.Reversed = True
doc.recompute()

polarpattern = body.newObject("PartDesign::PolarPattern", "PolarPattern")
polarpattern.Originals = [pocket7]
polarpattern.Axis = (doc.getObject("Y_Axis"), [""])
polarpattern.Angle = 360
polarpattern.Occurrences = 4
body.Tip = polarpattern

# Sketch on XZ plane
sketch10 = body.newObject("Sketcher::SketchObject", "Sketch009")
sketch10.AttachmentSupport = (doc.getObject("XZ_Plane"), [""])
sketch10.MapMode = "FlatFace"
sketch10.AttachmentOffset = App.Placement(Vector(0, 0, -3), App.Rotation())
sketch10.addGeometry(Part.LineSegment(Vector(-46.0732, 20.2239, 0), Vector(-69.6063, 24.0892, 0)), False)
sketch10.addGeometry(Part.ArcOfCircle(Part.Circle(Vector(-67.1751, 38.8909, 0), Vector(0, 0, 1), 15.000035), math.radians(115.587727), math.radians(260.672375)), False)
sketch10.addGeometry(Part.LineSegment(Vector(-73.6535, 52.4198, 0), Vector(-52.144, 62.7197, 0)), False)
sketch10.addGeometry(Part.ArcOfCircle(Part.Circle(Vector(-42.4264, 42.4264, 0), Vector(0, 0, 1), 22.5), math.radians(-99.327646), math.radians(115.587782)), False)
sketch10.addGeometry(Part.Circle(Vector(-42.4264, -42.4264, 0), Vector(0, 0, 1), 22.5), False)
sketch10.addGeometry(Part.Circle(Vector(42.4264, 42.4264, 0), Vector(0, 0, 1), 22.5), False)
sketch10.addGeometry(Part.Circle(Vector(42.4264, -42.4264, 0), Vector(0, 0, 1), 22.5), False)
sketch10.addConstraint(Sketcher.Constraint("Tangent", 0, 2, 1, 2))
sketch10.addConstraint(Sketcher.Constraint("Tangent", 1, 1, 2, 1))
sketch10.addConstraint(Sketcher.Constraint("Tangent", 2, 2, 3, 2))
sketch10.addConstraint(Sketcher.Constraint("Tangent", 3, 1, 0, 1))
sketch10.addConstraint(Sketcher.Constraint("Equal", 3, 4))
sketch10.addConstraint(Sketcher.Constraint("Equal", 4, 5))
sketch10.addConstraint(Sketcher.Constraint("Equal", 5, 6))
sketch10.addConstraint(Sketcher.Constraint("Symmetric", 4, 3, 5, 3, -1, 1))
sketch10.addConstraint(Sketcher.Constraint("Symmetric", 3, 3, 6, 3, -1, 1))
sketch10.addConstraint(Sketcher.Constraint("Symmetric", 3, 3, 5, 3, -2))
sketch10.addConstraint(Sketcher.Constraint("Diameter", 4, 45.0))
sketch10.addConstraint(Sketcher.Constraint("Radius", 1, 15.0))
sketch10.addConstraint(Sketcher.Constraint("DistanceY", 1, 1, 2, 2, 10.3))
sketch10.addConstraint(Sketcher.Constraint("DistanceX", 0, 2, 3, 3, 27.18))
sketch10.addConstraint(Sketcher.Constraint("DistanceX", 1, 1, 5, 3, 116.08))
sketch10.addConstraint(Sketcher.Constraint("DistanceY", -1, 1, 1, 3, 38.891))
pocket8 = body.newObject("PartDesign::Pocket", "Pocket007")
pocket8.Profile = sketch10
pocket8.Length = 10
pocket8.Reversed = True

# Sketch on XZ plane
sketch11 = body.newObject("Sketcher::SketchObject", "Sketch010")
sketch11.AttachmentSupport = (doc.getObject("XZ_Plane"), [""])
sketch11.MapMode = "FlatFace"
sketch11.AttachmentOffset = App.Placement(Vector(0, 0, -3), App.Rotation())
sketch11.addGeometry(Part.Circle(Vector(-68.5894, -47.3762, 0), Vector(0, 0, 1), 1.75), False)
sketch11.addGeometry(Part.Circle(Vector(-47.3762, -68.5894, 0), Vector(0, 0, 1), 1.75), False)
sketch11.addConstraint(Sketcher.Constraint("Equal", 0, 1))
sketch11.addConstraint(Sketcher.Constraint("Diameter", 0, 3.5))
sketch11.addConstraint(Sketcher.Constraint("DistanceX", 0, 3, -1, 1, 68.5894))
sketch11.addConstraint(Sketcher.Constraint("DistanceY", 0, 3, -1, 1, 47.3762))
sketch11.addConstraint(Sketcher.Constraint("DistanceX", 1, 3, -1, 1, 47.3762))
sketch11.addConstraint(Sketcher.Constraint("DistanceY", 1, 3, -1, 1, 68.5894))
pocket9 = body.newObject("PartDesign::Pocket", "Pocket008")
pocket9.Profile = sketch11
pocket9.Length = 10
pocket9.Reversed = True

doc.recompute()
